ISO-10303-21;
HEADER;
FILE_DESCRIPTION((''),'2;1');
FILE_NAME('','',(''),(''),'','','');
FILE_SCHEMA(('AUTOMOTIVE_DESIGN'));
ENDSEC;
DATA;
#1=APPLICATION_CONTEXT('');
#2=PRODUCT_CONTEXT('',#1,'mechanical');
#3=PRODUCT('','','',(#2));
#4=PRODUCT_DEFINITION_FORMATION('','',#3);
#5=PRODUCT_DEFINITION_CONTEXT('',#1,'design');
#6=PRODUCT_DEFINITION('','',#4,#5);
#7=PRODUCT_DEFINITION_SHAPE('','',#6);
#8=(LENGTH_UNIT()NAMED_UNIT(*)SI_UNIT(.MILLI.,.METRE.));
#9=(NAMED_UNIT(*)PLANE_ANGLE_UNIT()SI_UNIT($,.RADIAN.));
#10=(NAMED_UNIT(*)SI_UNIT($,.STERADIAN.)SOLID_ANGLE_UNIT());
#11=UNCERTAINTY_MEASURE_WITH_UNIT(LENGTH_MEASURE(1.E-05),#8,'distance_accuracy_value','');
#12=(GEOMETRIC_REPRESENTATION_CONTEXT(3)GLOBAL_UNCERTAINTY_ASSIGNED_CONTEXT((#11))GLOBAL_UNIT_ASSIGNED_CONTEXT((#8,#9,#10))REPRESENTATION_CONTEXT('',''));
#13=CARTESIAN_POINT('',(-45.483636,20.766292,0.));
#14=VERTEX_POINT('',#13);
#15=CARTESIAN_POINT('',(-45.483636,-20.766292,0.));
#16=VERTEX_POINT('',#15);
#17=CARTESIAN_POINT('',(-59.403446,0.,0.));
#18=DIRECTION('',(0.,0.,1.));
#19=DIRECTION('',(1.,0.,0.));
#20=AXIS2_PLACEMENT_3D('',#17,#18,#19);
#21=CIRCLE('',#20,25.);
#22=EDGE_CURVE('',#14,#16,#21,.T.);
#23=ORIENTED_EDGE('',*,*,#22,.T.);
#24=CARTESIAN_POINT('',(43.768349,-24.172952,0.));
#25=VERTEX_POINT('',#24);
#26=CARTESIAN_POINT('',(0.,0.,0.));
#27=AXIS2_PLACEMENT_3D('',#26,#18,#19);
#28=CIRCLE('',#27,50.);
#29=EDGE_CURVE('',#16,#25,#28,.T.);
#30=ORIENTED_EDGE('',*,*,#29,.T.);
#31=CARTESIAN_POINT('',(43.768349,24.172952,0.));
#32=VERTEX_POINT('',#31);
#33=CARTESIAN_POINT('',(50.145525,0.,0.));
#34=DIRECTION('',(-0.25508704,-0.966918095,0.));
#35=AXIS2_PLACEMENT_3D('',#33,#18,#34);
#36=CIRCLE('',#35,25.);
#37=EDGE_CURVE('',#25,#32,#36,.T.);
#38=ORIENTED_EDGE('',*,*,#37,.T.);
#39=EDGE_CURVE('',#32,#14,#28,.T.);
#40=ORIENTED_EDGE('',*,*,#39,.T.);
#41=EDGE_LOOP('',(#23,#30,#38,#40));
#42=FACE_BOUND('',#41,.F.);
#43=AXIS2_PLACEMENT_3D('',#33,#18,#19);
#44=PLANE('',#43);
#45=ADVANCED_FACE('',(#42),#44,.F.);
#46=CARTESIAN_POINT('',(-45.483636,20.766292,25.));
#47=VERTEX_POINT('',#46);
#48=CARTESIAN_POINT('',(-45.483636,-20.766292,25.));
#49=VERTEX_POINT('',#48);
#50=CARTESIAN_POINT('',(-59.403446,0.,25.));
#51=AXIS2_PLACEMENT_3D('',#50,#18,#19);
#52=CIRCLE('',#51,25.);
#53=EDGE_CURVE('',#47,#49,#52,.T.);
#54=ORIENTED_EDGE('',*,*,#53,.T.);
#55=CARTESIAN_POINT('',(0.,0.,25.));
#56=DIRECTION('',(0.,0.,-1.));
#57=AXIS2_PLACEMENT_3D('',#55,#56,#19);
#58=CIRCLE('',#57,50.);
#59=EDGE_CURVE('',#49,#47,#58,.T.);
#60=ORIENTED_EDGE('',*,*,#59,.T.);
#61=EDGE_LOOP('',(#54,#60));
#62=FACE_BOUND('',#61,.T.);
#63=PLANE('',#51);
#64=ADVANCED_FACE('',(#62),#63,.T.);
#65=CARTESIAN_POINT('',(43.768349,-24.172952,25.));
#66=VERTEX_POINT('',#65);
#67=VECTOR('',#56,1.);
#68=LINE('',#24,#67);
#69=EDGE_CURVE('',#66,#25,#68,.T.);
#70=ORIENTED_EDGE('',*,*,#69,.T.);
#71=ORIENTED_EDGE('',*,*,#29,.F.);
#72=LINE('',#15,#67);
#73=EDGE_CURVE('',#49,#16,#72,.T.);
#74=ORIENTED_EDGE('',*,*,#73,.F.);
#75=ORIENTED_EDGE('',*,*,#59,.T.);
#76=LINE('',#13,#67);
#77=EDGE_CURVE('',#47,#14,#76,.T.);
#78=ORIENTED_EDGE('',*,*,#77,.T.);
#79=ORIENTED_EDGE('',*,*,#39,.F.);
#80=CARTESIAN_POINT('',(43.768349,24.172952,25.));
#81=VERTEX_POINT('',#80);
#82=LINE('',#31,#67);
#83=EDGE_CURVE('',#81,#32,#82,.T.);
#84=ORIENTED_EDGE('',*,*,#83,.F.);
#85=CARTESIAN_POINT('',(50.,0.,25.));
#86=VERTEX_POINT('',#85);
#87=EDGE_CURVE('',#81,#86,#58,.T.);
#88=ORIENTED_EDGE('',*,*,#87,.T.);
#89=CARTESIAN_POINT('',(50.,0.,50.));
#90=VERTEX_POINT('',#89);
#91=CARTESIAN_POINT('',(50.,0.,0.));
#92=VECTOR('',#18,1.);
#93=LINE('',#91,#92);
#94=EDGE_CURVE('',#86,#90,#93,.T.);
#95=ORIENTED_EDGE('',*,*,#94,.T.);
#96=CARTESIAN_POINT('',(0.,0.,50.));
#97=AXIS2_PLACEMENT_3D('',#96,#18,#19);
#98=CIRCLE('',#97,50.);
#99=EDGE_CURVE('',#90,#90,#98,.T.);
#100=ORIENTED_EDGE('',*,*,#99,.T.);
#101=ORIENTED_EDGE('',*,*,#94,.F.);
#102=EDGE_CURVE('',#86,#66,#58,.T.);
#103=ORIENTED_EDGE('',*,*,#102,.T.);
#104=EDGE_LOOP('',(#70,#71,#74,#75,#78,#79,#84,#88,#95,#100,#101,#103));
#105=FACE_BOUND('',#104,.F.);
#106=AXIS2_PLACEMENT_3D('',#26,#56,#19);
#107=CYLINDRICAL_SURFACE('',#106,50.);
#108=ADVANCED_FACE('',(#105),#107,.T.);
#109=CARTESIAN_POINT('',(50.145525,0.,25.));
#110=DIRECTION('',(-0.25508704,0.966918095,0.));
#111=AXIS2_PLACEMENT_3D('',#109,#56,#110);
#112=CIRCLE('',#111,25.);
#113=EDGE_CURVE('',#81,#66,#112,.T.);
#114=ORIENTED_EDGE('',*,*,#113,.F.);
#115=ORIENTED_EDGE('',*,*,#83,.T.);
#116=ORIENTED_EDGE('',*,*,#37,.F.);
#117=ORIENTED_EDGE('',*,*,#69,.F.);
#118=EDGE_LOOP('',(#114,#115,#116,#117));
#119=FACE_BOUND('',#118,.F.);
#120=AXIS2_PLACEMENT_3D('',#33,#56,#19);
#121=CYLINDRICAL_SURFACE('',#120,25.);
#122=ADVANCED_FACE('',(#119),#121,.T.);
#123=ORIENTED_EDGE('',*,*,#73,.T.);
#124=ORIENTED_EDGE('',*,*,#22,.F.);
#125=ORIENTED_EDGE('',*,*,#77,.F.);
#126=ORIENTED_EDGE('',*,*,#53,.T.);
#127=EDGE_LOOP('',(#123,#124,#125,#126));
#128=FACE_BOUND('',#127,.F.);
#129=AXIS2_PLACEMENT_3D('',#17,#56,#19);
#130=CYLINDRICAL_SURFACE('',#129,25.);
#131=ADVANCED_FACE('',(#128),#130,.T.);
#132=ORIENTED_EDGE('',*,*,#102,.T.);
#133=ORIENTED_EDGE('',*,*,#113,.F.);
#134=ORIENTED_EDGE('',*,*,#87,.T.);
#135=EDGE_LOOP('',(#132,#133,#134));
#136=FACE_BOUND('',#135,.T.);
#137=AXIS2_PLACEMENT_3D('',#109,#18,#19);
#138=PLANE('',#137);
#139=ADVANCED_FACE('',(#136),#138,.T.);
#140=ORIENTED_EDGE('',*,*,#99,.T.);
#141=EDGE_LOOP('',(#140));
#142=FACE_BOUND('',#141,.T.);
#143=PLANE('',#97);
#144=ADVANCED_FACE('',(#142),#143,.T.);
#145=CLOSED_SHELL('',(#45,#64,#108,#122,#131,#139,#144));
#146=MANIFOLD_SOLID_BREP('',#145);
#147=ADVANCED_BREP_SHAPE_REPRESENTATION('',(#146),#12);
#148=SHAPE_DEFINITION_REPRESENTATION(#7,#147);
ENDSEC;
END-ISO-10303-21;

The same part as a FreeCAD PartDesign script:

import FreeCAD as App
import Part
import Sketcher
Q = App.Units.Quantity

doc = App.newDocument("Part")
params = doc.addObject("Spreadsheet::Sheet", "Params")
for row, (alias, value) in enumerate([
    ("sketch1_diameter", "100 mm"),
    ("pad1_length", "50 mm"),
    ("sketch2_diameter", "50 mm"),
    ("pad2_length", "25 mm"),
], start=1):
    params.set(f"A{row}", alias)
    params.set(f"B{row}", "=" + value)
    params.setAlias(f"B{row}", alias)

body = doc.addObject("PartDesign::Body", "Body")

# Sketch on XY plane
sketch1 = doc.addObject("Sketcher::SketchObject", "Sketch")
body.addObject(sketch1)
sketch1.AttachmentSupport = (doc.XY_Plane, [""])
sketch1.MapMode = "FlatFace"
sketch1.addGeometry(Part.Circle(App.Vector(0, 0, 0), App.Vector(0, 0, 1), 50), False)
sketch1.addConstraint([
    Sketcher.Constraint("Coincident", 0, 3, -1, 1),
    Sketcher.Constraint("Diameter", 0, Q("100 mm")),
])
sketch1.setExpression("Constraints[1]", "Params.sketch1_diameter")
pad1 = doc.addObject("PartDesign::Pad", "Pad")
body.addObject(pad1)
pad1.Profile = sketch1
pad1.setExpression("Length", "Params.pad1_length")

# Sketch on XY plane
sketch2 = doc.addObject("Sketcher::SketchObject", "Sketch001")
body.addObject(sketch2)
sketch2.AttachmentSupport = (doc.XY_Plane, [""])
sketch2.MapMode = "FlatFace"
sketch2.addGeometry([
    Part.Circle(App.Vector(50, 0, 0), App.Vector(0, 0, 1), 25),
    Part.Circle(App.Vector(-59, 0, 0), App.Vector(0, 0, 1), 25),
], False)
sketch2.addConstraint([
    Sketcher.Constraint("Equal", 0, 1),
    Sketcher.Constraint("PointOnObject", 0, 3, -1),
    Sketcher.Constraint("PointOnObject", 1, 3, -1),
    Sketcher.Constraint("Diameter", 0, Q("50 mm")),
    Sketcher.Constraint("DistanceX", 1, 3, 0, 3, Q("109.548971 mm")),
    Sketcher.Constraint("DistanceX", -1, 1, 0, 3, Q("50.145525 mm")),
])
sketch2.setExpression("Constraints[3]", "Params.sketch2_diameter")
pad2 = doc.addObject("PartDesign::Pad", "Pad001")
body.addObject(pad2)
pad2.Profile = sketch2
pad2.setExpression("Length", "Params.pad2_length")

doc.recompute()
